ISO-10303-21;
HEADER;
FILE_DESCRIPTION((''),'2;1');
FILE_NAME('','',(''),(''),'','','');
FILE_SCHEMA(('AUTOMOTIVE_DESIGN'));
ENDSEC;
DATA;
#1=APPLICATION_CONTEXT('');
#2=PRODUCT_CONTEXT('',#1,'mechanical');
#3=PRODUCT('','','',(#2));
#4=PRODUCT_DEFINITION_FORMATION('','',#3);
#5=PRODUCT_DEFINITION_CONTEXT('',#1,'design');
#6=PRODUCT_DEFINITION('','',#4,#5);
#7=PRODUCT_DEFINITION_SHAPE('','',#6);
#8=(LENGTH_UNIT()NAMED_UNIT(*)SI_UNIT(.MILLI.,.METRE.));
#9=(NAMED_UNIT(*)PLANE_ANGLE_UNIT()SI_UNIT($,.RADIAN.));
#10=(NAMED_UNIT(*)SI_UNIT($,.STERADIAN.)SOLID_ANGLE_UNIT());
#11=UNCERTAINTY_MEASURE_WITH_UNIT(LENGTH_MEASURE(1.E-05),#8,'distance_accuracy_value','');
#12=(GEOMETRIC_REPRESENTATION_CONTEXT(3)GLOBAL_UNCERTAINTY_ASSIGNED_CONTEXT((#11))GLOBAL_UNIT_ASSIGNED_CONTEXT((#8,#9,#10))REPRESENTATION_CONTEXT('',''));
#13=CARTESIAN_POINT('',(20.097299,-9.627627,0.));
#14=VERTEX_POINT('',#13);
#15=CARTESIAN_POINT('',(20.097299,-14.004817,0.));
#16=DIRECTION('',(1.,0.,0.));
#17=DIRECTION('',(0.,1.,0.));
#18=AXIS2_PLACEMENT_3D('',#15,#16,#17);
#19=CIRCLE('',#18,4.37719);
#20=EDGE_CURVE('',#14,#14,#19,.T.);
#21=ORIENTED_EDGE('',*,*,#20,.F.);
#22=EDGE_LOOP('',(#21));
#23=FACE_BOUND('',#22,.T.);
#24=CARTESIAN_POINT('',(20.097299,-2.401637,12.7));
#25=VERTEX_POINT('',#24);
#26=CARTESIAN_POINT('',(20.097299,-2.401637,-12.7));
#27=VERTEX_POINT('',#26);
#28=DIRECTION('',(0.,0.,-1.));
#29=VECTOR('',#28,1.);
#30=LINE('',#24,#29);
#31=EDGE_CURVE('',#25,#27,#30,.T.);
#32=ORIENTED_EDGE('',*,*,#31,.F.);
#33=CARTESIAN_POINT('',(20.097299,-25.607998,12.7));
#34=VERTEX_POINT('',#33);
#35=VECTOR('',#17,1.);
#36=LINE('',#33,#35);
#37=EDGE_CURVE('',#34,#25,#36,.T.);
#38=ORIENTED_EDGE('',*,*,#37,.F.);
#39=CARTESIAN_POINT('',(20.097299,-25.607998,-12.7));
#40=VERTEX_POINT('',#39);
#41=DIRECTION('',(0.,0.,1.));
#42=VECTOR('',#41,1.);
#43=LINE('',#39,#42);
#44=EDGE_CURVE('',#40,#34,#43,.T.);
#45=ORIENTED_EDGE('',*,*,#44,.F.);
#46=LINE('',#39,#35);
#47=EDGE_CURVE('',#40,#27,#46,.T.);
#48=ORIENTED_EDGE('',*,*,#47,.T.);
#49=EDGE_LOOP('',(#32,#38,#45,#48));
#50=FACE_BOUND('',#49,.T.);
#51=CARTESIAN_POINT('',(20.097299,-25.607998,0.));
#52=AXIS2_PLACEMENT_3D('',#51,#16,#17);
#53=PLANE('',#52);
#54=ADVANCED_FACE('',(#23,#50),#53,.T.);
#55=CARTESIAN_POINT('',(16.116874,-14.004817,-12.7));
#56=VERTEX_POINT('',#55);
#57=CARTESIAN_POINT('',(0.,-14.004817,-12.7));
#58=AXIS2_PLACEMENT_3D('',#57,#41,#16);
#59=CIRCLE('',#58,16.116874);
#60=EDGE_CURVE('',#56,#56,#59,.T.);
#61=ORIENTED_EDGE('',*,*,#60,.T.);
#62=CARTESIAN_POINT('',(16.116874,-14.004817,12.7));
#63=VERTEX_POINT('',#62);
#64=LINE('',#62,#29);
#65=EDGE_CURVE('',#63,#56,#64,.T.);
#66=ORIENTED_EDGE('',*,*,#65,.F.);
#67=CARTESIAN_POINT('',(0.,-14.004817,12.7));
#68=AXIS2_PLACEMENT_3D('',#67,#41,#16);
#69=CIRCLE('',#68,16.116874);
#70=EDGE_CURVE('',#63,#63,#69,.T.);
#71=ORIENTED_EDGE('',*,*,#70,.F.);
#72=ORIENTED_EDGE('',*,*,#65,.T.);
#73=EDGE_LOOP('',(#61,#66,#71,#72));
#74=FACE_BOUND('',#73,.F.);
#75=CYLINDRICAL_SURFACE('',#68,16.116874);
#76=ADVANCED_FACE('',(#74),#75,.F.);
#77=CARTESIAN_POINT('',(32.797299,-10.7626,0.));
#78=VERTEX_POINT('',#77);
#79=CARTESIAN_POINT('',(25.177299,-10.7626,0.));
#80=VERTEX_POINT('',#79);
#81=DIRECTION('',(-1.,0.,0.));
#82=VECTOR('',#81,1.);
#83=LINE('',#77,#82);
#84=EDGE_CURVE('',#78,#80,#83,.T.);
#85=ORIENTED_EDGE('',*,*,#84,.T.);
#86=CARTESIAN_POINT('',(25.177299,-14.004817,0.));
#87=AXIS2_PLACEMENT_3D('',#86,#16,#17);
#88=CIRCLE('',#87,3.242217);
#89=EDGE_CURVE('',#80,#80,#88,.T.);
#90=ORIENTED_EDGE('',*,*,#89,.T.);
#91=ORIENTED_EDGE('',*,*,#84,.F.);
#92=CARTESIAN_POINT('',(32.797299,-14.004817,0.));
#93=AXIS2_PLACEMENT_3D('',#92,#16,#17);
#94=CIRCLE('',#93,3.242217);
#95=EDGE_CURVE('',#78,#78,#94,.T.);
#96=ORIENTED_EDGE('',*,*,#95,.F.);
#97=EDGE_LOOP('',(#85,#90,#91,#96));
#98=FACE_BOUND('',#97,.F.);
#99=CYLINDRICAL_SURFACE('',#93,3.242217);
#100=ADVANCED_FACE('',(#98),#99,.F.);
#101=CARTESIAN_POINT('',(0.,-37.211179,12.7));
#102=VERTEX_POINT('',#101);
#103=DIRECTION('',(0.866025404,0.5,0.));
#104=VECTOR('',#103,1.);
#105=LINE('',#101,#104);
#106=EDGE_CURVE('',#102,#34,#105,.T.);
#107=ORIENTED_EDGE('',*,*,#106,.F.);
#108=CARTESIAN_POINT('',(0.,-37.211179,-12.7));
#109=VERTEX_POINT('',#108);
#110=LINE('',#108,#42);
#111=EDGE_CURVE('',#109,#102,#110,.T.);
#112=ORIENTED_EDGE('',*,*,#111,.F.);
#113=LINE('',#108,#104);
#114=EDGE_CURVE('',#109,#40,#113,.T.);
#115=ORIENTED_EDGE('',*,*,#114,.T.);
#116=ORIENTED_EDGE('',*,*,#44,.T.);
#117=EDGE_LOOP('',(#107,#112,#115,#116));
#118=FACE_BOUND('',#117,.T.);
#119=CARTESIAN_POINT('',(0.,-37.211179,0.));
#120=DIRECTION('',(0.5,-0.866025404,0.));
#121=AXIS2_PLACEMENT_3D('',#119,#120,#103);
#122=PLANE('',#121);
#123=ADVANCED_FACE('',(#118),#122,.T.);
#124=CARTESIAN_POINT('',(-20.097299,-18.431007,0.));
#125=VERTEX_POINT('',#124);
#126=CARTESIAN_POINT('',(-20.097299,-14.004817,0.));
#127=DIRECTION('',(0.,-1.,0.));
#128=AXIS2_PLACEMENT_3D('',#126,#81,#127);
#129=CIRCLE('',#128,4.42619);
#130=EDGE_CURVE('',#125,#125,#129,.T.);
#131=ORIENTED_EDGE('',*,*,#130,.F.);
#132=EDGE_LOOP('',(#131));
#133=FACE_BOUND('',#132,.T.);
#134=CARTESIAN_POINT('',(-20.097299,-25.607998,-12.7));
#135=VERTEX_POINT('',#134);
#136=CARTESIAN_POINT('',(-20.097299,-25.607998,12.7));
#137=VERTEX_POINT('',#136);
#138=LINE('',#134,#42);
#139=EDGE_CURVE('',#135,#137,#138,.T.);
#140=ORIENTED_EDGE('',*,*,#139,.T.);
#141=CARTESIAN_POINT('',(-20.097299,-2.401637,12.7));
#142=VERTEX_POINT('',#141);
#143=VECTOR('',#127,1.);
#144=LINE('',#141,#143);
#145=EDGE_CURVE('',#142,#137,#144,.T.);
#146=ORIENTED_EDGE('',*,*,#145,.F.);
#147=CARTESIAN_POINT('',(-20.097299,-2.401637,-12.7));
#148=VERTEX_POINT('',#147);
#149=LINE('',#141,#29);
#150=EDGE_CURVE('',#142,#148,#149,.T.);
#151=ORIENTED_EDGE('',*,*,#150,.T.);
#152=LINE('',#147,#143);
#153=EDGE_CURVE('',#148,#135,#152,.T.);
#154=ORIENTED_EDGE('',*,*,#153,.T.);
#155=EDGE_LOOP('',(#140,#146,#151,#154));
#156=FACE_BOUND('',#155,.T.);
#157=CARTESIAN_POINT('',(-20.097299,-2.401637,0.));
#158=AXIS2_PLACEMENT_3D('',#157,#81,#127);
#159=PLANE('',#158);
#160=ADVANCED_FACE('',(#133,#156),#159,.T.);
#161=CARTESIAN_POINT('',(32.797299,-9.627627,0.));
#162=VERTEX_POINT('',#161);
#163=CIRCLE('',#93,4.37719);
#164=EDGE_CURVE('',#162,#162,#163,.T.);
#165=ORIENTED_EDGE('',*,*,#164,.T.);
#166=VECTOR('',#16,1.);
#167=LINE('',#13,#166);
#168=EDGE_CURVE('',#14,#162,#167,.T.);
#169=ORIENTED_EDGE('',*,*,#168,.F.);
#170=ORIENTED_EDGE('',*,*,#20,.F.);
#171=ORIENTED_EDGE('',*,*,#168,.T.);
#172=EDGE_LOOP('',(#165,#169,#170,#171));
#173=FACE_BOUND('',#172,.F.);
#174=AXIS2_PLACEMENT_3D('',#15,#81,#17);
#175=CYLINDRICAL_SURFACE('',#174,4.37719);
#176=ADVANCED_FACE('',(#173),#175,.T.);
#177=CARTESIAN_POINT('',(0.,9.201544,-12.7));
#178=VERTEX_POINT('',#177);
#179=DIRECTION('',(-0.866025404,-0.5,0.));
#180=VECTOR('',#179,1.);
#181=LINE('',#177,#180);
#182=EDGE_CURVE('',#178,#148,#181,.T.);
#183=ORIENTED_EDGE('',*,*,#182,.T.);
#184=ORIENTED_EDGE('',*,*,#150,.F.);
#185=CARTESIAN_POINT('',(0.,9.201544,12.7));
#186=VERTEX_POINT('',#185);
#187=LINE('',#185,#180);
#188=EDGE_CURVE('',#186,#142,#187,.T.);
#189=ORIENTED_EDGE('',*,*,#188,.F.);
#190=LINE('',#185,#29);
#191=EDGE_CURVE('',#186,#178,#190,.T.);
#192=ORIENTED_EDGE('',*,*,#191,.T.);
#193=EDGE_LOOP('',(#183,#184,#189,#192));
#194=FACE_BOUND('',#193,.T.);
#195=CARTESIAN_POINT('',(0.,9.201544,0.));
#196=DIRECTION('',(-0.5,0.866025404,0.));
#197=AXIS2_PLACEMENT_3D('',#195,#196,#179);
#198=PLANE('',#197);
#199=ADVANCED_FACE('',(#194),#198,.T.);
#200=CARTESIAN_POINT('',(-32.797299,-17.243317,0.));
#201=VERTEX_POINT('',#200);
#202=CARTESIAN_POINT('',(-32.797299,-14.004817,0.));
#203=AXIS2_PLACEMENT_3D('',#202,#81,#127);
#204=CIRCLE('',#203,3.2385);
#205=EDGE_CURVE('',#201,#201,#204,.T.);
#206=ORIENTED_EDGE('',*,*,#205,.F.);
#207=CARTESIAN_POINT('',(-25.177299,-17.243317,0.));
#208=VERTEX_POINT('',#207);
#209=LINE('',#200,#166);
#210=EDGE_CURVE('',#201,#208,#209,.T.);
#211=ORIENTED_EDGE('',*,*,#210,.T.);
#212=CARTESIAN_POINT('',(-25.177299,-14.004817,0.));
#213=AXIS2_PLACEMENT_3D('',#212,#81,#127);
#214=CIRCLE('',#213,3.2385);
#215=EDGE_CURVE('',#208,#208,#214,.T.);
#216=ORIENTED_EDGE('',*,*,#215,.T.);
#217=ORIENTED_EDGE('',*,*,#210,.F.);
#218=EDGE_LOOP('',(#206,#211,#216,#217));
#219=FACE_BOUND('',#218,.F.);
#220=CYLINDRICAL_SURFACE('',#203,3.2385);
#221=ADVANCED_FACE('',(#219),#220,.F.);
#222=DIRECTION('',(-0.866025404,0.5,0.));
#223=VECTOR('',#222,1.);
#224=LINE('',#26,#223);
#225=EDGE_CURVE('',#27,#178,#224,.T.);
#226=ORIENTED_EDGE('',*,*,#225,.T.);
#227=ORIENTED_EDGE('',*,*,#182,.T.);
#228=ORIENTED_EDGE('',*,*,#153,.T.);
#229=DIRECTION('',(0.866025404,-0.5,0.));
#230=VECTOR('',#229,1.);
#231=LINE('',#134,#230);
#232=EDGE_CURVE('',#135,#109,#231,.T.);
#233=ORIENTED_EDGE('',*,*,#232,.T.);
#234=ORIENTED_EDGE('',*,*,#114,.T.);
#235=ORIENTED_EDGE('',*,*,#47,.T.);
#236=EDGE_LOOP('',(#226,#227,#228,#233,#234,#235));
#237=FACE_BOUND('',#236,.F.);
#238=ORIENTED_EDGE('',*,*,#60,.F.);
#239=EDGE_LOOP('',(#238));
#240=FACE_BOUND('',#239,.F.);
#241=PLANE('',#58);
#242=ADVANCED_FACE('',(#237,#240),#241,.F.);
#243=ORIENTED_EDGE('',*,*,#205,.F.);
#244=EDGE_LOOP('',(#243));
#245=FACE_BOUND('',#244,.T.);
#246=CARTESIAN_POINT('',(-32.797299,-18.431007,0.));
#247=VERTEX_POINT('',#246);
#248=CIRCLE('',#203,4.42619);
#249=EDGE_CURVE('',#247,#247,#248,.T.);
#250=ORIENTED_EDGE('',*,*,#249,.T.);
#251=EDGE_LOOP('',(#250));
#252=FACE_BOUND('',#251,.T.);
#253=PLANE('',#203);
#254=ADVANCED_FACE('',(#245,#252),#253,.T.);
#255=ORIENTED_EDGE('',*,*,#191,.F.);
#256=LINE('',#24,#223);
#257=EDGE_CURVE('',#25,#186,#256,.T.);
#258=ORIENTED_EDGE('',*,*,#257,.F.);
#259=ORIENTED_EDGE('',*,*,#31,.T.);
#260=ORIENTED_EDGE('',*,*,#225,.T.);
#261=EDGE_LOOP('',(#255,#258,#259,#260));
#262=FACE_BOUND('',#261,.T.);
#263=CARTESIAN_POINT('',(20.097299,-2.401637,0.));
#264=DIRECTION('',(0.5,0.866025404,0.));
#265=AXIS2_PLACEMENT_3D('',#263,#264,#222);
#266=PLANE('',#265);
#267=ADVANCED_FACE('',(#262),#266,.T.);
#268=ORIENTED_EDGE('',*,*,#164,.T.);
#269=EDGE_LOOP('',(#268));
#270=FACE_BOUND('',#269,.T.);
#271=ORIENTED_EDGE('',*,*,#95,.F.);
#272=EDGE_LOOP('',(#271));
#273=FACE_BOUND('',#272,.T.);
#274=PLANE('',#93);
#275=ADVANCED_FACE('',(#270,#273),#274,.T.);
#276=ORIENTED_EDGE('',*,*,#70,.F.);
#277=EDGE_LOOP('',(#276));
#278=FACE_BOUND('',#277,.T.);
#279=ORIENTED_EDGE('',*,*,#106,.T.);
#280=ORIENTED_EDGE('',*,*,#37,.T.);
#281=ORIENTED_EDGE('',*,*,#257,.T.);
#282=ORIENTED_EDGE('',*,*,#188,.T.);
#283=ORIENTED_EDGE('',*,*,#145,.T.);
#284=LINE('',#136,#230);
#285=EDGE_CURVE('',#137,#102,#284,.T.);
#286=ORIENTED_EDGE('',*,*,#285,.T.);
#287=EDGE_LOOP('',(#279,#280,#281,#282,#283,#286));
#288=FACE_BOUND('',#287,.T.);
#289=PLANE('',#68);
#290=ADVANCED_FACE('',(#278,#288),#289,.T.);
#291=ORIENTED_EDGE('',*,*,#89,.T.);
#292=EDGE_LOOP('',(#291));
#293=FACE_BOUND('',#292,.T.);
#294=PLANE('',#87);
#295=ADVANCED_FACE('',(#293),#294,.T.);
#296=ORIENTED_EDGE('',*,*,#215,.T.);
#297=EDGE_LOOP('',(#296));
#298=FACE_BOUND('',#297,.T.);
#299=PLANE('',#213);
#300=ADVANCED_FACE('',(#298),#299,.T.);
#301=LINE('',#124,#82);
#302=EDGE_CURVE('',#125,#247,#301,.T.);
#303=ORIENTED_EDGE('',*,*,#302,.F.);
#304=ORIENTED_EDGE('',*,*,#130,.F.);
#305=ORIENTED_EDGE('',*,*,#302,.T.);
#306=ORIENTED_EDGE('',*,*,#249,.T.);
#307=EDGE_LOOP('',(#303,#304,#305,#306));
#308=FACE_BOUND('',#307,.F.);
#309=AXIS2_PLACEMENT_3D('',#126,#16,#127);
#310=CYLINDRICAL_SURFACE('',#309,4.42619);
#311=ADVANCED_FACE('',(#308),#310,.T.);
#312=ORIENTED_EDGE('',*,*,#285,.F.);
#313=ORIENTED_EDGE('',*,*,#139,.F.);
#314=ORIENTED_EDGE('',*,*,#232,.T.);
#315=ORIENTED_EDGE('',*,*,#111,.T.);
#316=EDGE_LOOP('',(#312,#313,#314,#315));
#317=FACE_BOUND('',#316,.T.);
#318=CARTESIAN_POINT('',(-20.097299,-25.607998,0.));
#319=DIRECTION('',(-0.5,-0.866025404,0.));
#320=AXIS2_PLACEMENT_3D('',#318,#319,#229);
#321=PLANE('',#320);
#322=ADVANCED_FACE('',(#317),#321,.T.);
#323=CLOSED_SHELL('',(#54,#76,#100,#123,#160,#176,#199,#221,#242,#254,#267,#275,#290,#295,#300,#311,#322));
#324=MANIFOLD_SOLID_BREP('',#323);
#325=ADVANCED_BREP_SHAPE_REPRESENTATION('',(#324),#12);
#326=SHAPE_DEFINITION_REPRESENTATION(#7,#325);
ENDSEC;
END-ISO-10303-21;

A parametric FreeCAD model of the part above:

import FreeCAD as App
import Part
import Sketcher
Q = App.Units.Quantity


def add_polygon(sketch, points):
    """Adds a closed chain of lines whose ends are joined by coincident constraints."""
    first, n = sketch.GeometryCount, len(points)
    for a, b in zip(points, points[1:] + points[:1]):
        sketch.addGeometry(Part.LineSegment(App.Vector(*a, 0), App.Vector(*b, 0)), False)
    for i in range(n):
        sketch.addConstraint(Sketcher.Constraint("Coincident", first + i, 2, first + (i + 1) % n, 1))

doc = App.newDocument("Part")
body = doc.addObject("PartDesign::Body", "Body")

# Sketch on XY plane
sketch1 = doc.addObject("Sketcher::SketchObject", "Sketch")
body.addObject(sketch1)
sketch1.AttachmentSupport = (doc.XY_Plane, [""])
sketch1.MapMode = "FlatFace"
add_polygon(sketch1, [(-20, -2), (-20, -26), (0, -37), (20, -26), (20, -2), (0, 9)])  # lines 0-5
sketch1.addConstraint(Sketcher.Constraint("Vertical", 0))
sketch1.addConstraint(Sketcher.Constraint("Vertical", 3))
sketch1.addConstraint(Sketcher.Constraint("Symmetric", 0, 2, 2, 2, -2))
sketch1.addConstraint(Sketcher.Constraint("PointOnObject", 1, 2, -2))
sketch1.addConstraint(Sketcher.Constraint("PointOnObject", 4, 2, -2))
sketch1.addConstraint(Sketcher.Constraint("Parallel", 1, 4))
sketch1.addConstraint(Sketcher.Constraint("Parallel", 2, 5))
sketch1.addConstraint(Sketcher.Constraint("Angle", 1, Q("-30 deg")))
sketch1.addConstraint(Sketcher.Constraint("DistanceY", 0, 2, 0, 1, 23.206361))
sketch1.addConstraint(Sketcher.Constraint("DistanceX", 0, 2, -1, 1, 20.097299))
sketch1.addConstraint(Sketcher.Constraint("DistanceY", 1, 2, -1, 1, 37.211179))
pad1 = doc.addObject("PartDesign::Pad", "Pad")
body.addObject(pad1)
pad1.Profile = sketch1
pad1.Length = Q("1 in")
pad1.Midplane = True

# Sketch on XY plane
sketch2 = doc.addObject("Sketcher::SketchObject", "Sketch001")
body.addObject(sketch2)
sketch2.AttachmentSupport = (doc.XY_Plane, [""])
sketch2.MapMode = "FlatFace"
sketch2.AttachmentOffset = App.Placement(App.Vector(0, 0, 0.5 * 25.4), App.Rotation())
sketch2.addGeometry(Part.Circle(App.Vector(0, -14, 0), App.Vector(0, 0, 1), 16), False)
sketch2.addConstraint(Sketcher.Constraint("PointOnObject", 0, 3, -2))
sketch2.addConstraint(Sketcher.Constraint("Diameter", 0, 32.233748))
sketch2.addConstraint(Sketcher.Constraint("DistanceY", 0, 3, -1, 1, 14.004817))
pocket1 = doc.addObject("PartDesign::Pocket", "Pocket")
body.addObject(pocket1)
pocket1.Profile = sketch2
pocket1.Length = Q("1 in")

# Sketch on YZ plane
sketch3 = doc.addObject("Sketcher::SketchObject", "Sketch002")
body.addObject(sketch3)
sketch3.AttachmentSupport = (doc.YZ_Plane, [""])
sketch3.MapMode = "FlatFace"
sketch3.AttachmentOffset = App.Placement(App.Vector(0, 0, -20.097299), App.Rotation())
sketch3.addGeometry(Part.Circle(App.Vector(-14, 0, 0), App.Vector(0, 0, 1), 4.4), False)
sketch3.addConstraint(Sketcher.Constraint("PointOnObject", 0, 3, -1))
sketch3.addConstraint(Sketcher.Constraint("Diameter", 0, 8.85238))
sketch3.addConstraint(Sketcher.Constraint("DistanceX", 0, 3, -1, 1, 14.004817))
pad2 = doc.addObject("PartDesign::Pad", "Pad001")
body.addObject(pad2)
pad2.Profile = sketch3
pad2.Length = Q("0.5 in")
pad2.Reversed = True

# Sketch on YZ plane
sketch4 = doc.addObject("Sketcher::SketchObject", "Sketch003")
body.addObject(sketch4)
sketch4.AttachmentSupport = (doc.YZ_Plane, [""])
sketch4.MapMode = "FlatFace"
sketch4.AttachmentOffset = App.Placement(App.Vector(0, 0, 20.097299), App.Rotation())
sketch4.addGeometry(Part.Circle(App.Vector(-14, 0, 0), App.Vector(0, 0, 1), 4.4), False)
sketch4.addConstraint(Sketcher.Constraint("PointOnObject", 0, 3, -1))
sketch4.addConstraint(Sketcher.Constraint("Diameter", 0, 8.75438))
sketch4.addConstraint(Sketcher.Constraint("DistanceX", 0, 3, -1, 1, 14.004817))
pad3 = doc.addObject("PartDesign::Pad", "Pad002")
body.addObject(pad3)
pad3.Profile = sketch4
pad3.Length = Q("0.5 in")

# Sketch on YZ plane
sketch5 = doc.addObject("Sketcher::SketchObject", "Sketch004")
body.addObject(sketch5)
sketch5.AttachmentSupport = (doc.YZ_Plane, [""])
sketch5.MapMode = "FlatFace"
sketch5.AttachmentOffset = App.Placement(App.Vector(0, 0, -32.797299), App.Rotation())
sketch5.addGeometry(Part.Circle(App.Vector(-14, 0, 0), App.Vector(0, 0, 1), 3.2), False)
sketch5.addConstraint(Sketcher.Constraint("PointOnObject", 0, 3, -1))
sketch5.addConstraint(Sketcher.Constraint("Diameter", 0, Q("0.255 in")))
sketch5.addConstraint(Sketcher.Constraint("DistanceX", 0, 3, -1, 1, 14.004817))
pocket2 = doc.addObject("PartDesign::Pocket", "Pocket001")
body.addObject(pocket2)
pocket2.Profile = sketch5
pocket2.Length = Q("0.3 in")
pocket2.Reversed = True

# Sketch on YZ plane
sketch6 = doc.addObject("Sketcher::SketchObject", "Sketch005")
body.addObject(sketch6)
sketch6.AttachmentSupport = (doc.YZ_Plane, [""])
sketch6.MapMode = "FlatFace"
sketch6.AttachmentOffset = App.Placement(App.Vector(0, 0, 32.797299), App.Rotation())
sketch6.addGeometry(Part.Circle(App.Vector(-14, 0, 0), App.Vector(0, 0, 1), 3.2), False)
sketch6.addConstraint(Sketcher.Constraint("PointOnObject", 0, 3, -1))
sketch6.addConstraint(Sketcher.Constraint("Diameter", 0, 6.484435))
sketch6.addConstraint(Sketcher.Constraint("DistanceX", 0, 3, -1, 1, 14.004817))
pocket3 = doc.addObject("PartDesign::Pocket", "Pocket002")
body.addObject(pocket3)
pocket3.Profile = sketch6
pocket3.Length = Q("0.3 in")

doc.recompute()
